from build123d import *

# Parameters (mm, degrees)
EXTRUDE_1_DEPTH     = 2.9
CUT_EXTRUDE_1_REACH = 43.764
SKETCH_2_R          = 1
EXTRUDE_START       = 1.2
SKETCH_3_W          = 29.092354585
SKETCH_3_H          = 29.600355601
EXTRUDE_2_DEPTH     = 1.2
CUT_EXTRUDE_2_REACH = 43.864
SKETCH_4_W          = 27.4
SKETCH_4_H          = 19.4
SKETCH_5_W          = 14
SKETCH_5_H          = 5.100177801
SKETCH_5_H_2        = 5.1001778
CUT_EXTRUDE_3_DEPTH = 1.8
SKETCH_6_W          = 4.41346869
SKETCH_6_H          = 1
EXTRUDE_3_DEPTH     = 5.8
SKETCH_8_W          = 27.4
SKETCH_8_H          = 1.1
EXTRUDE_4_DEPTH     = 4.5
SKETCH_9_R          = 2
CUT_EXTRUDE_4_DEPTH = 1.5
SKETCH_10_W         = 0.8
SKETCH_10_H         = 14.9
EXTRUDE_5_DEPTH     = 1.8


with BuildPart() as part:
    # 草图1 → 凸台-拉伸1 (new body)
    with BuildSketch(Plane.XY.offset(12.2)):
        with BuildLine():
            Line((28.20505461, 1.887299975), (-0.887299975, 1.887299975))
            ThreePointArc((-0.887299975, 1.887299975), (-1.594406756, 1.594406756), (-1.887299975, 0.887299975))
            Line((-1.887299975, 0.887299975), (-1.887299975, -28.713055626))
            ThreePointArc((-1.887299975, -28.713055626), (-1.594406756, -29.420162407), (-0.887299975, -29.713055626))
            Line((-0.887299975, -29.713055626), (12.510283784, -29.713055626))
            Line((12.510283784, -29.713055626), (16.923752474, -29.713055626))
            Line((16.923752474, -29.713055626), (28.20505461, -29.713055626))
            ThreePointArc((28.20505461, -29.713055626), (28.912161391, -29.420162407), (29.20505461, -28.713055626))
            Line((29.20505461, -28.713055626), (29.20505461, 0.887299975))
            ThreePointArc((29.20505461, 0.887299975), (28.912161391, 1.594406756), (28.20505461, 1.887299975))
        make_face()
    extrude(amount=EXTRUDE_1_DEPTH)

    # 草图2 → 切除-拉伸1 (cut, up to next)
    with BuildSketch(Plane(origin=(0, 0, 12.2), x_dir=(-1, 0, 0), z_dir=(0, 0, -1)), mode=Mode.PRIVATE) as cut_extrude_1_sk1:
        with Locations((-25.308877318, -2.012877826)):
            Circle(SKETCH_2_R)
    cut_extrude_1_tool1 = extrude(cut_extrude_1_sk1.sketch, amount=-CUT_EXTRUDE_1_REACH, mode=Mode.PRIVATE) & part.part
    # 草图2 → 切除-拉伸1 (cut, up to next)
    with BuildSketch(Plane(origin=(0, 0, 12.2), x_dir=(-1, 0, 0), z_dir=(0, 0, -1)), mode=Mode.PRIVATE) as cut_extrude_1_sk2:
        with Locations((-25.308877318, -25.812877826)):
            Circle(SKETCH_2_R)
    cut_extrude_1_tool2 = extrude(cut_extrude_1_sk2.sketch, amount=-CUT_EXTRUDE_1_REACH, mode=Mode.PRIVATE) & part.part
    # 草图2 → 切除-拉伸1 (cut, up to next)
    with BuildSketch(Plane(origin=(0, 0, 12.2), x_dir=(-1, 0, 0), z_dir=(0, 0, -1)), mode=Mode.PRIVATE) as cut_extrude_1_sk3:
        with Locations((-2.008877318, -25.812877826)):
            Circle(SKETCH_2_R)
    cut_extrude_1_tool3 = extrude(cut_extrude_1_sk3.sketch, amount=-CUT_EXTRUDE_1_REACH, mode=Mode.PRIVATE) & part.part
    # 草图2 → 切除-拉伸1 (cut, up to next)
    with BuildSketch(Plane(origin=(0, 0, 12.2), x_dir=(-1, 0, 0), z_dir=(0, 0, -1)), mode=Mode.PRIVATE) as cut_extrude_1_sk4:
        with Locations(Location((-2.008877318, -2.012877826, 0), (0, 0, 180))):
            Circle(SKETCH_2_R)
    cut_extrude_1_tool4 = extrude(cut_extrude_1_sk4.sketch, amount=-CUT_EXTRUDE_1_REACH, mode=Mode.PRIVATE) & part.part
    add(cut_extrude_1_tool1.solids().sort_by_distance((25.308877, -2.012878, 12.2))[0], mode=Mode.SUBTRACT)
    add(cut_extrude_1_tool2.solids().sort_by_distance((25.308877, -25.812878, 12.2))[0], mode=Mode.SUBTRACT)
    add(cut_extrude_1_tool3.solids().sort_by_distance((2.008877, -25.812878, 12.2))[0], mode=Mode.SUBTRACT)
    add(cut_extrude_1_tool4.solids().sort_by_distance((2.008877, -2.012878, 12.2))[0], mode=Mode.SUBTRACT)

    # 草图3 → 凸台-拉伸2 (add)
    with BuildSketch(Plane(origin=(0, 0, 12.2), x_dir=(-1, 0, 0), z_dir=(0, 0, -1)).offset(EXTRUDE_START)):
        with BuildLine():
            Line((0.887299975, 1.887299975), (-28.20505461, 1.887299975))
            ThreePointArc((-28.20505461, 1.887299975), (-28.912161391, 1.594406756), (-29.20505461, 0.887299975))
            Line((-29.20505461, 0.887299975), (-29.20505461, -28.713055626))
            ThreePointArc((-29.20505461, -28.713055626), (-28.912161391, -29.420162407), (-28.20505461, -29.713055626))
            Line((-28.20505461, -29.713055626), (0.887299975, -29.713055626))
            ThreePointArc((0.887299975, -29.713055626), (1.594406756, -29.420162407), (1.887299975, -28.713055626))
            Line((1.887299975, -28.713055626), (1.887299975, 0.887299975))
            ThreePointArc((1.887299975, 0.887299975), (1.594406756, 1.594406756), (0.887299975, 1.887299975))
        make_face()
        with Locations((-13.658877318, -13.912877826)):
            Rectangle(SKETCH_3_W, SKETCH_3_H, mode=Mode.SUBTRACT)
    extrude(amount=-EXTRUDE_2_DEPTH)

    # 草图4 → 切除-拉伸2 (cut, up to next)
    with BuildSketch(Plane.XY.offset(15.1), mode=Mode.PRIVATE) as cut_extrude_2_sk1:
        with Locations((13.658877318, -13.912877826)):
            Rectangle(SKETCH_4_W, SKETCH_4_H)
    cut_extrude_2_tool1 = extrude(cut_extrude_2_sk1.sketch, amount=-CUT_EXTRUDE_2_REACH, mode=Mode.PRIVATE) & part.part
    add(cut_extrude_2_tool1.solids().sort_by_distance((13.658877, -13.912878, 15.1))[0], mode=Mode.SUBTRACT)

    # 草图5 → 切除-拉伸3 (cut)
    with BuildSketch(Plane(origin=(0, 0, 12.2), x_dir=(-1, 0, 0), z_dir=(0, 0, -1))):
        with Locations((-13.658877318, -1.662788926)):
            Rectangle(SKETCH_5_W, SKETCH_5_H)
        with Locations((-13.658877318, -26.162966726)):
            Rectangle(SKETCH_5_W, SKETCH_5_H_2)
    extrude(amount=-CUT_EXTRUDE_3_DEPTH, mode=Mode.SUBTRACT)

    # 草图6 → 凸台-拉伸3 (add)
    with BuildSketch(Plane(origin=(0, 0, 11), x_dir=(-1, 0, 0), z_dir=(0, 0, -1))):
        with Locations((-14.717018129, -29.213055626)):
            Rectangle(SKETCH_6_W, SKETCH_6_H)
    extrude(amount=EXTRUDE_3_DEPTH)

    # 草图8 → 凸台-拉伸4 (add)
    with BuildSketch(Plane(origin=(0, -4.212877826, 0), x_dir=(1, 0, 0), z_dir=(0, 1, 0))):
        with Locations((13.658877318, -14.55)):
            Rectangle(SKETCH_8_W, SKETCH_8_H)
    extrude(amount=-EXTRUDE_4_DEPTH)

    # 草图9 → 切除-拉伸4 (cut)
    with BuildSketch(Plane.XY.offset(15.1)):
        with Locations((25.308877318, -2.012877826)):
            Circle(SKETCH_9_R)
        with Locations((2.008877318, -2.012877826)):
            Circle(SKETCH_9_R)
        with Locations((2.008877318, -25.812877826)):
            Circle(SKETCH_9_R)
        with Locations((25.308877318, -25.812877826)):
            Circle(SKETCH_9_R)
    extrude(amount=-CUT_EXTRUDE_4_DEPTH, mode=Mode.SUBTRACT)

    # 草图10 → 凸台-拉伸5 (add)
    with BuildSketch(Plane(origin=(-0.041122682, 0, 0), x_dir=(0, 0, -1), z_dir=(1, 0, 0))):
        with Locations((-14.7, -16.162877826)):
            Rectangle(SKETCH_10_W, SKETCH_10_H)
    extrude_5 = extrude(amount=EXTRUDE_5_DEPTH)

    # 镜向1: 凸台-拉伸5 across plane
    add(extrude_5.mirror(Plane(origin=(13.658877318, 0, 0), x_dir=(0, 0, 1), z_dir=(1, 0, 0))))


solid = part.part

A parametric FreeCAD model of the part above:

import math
import FreeCAD as App
import Part
import Sketcher

V = App.Vector


def add_polygon(sketch, points):
    """Adds a closed chain of lines whose ends are joined by coincident constraints."""
    first, n = sketch.GeometryCount, len(points)
    for a, b in zip(points, points[1:] + points[:1]):
        sketch.addGeometry(Part.LineSegment(App.Vector(*a, 0), App.Vector(*b, 0)), False)
    for i in range(n):
        sketch.addConstraint(Sketcher.Constraint("Coincident", first + i, 2, first + (i + 1) % n, 1))

doc = App.newDocument("Part")
body = doc.addObject("PartDesign::Body", "Body")

# Sketch on XY plane
sketch1 = body.newObject("Sketcher::SketchObject", "Sketch")
sketch1.AttachmentSupport = (doc.getObject("XY_Plane"), [""])
sketch1.MapMode = "FlatFace"
sketch1.AttachmentOffset = App.Placement(V(0, 0, 12.2), App.Rotation())
sketch1.addGeometry(Part.LineSegment(V(28.2, 1.9, 0), V(-0.9, 1.9, 0)), False)
sketch1.addGeometry(Part.ArcOfCircle(Part.Circle(V(-0.9, 0.9, 0), V(0, 0, 1), 1), math.radians(90), math.radians(180)), False)
sketch1.addGeometry(Part.LineSegment(V(-1.9, 0.9, 0), V(-1.9, -28.7, 0)), False)
sketch1.addGeometry(Part.ArcOfCircle(Part.Circle(V(-0.9, -28.7, 0), V(0, 0, 1), 1), math.radians(-180), math.radians(-90)), False)
sketch1.addGeometry(Part.LineSegment(V(-0.9, -29.7, 0), V(28.2, -29.7, 0)), False)
sketch1.addGeometry(Part.ArcOfCircle(Part.Circle(V(28.2, -28.7, 0), V(0, 0, 1), 1), math.radians(-90), math.radians(0)), False)
sketch1.addGeometry(Part.LineSegment(V(29.2, -28.7, 0), V(29.2, 0.9, 0)), False)
sketch1.addGeometry(Part.ArcOfCircle(Part.Circle(V(28.2, 0.9, 0), V(0, 0, 1), 1), math.radians(0), math.radians(90)), False)
sketch1.addConstraint(Sketcher.Constraint("Tangent", 0, 2, 1, 1))
sketch1.addConstraint(Sketcher.Constraint("Tangent", 1, 2, 2, 1))
sketch1.addConstraint(Sketcher.Constraint("Tangent", 2, 2, 3, 1))
sketch1.addConstraint(Sketcher.Constraint("Tangent", 3, 2, 4, 1))
sketch1.addConstraint(Sketcher.Constraint("Tangent", 4, 2, 5, 1))
sketch1.addConstraint(Sketcher.Constraint("Tangent", 5, 2, 6, 1))
sketch1.addConstraint(Sketcher.Constraint("Tangent", 6, 2, 7, 1))
sketch1.addConstraint(Sketcher.Constraint("Tangent", 7, 2, 0, 1))
sketch1.addConstraint(Sketcher.Constraint("Horizontal", 0))
sketch1.addConstraint(Sketcher.Constraint("Vertical", 2))
sketch1.addConstraint(Sketcher.Constraint("Horizontal", 4))
sketch1.addConstraint(Sketcher.Constraint("Vertical", 6))
sketch1.addConstraint(Sketcher.Constraint("Equal", 1, 3))
sketch1.addConstraint(Sketcher.Constraint("Equal", 3, 5))
sketch1.addConstraint(Sketcher.Constraint("Equal", 5, 7))
sketch1.addConstraint(Sketcher.Constraint("Radius", 1, 1.0))
sketch1.addConstraint(Sketcher.Constraint("DistanceX", 1, 3, -1, 1, 0.8873))
sketch1.addConstraint(Sketcher.Constraint("DistanceY", -1, 1, 1, 3, 0.8873))
sketch1.addConstraint(Sketcher.Constraint("DistanceX", 0, 2, 0, 1, 29.092355))
sketch1.addConstraint(Sketcher.Constraint("DistanceY", 2, 2, 2, 1, 29.600356))
pad1 = body.newObject("PartDesign::Pad", "Pad")
pad1.Profile = sketch1
pad1.Length = 2.9

# Sketch on XY plane
sketch2 = body.newObject("Sketcher::SketchObject", "Sketch001")
sketch2.AttachmentSupport = (doc.getObject("XY_Plane"), [""])
sketch2.MapMode = "FlatFace"
sketch2.AttachmentOffset = App.Placement(V(0, 0, 12.2), App.Rotation())
sketch2.addGeometry(Part.Circle(V(25.3, -2, 0), V(0, 0, 1), 1), False)
sketch2.addConstraint(Sketcher.Constraint("Diameter", 0, 2.0))
sketch2.addConstraint(Sketcher.Constraint("DistanceX", -1, 1, 0, 3, 25.308877))
sketch2.addConstraint(Sketcher.Constraint("DistanceY", 0, 3, -1, 1, 2.012878))
pocket1 = body.newObject("PartDesign::Pocket", "Pocket")
pocket1.Profile = sketch2
pocket1.Type = "UpToFirst"
pocket1.Reversed = True

# Sketch on XY plane
sketch3 = body.newObject("Sketcher::SketchObject", "Sketch002")
sketch3.AttachmentSupport = (doc.getObject("XY_Plane"), [""])
sketch3.MapMode = "FlatFace"
sketch3.AttachmentOffset = App.Placement(V(0, 0, 12.2), App.Rotation())
sketch3.addGeometry(Part.Circle(V(25.3, -25.8, 0), V(0, 0, 1), 1), False)
sketch3.addConstraint(Sketcher.Constraint("Diameter", 0, 2.0))
sketch3.addConstraint(Sketcher.Constraint("DistanceX", -1, 1, 0, 3, 25.308877))
sketch3.addConstraint(Sketcher.Constraint("DistanceY", 0, 3, -1, 1, 25.812878))
pocket2 = body.newObject("PartDesign::Pocket", "Pocket001")
pocket2.Profile = sketch3
pocket2.Type = "UpToFirst"
pocket2.Reversed = True

# Sketch on XY plane
sketch4 = body.newObject("Sketcher::SketchObject", "Sketch003")
sketch4.AttachmentSupport = (doc.getObject("XY_Plane"), [""])
sketch4.MapMode = "FlatFace"
sketch4.AttachmentOffset = App.Placement(V(0, 0, 12.2), App.Rotation())
sketch4.addGeometry(Part.Circle(V(2, -25.8, 0), V(0, 0, 1), 1), False)
sketch4.addConstraint(Sketcher.Constraint("Diameter", 0, 2.0))
sketch4.addConstraint(Sketcher.Constraint("DistanceX", -1, 1, 0, 3, 2.008877))
sketch4.addConstraint(Sketcher.Constraint("DistanceY", 0, 3, -1, 1, 25.812878))
pocket3 = body.newObject("PartDesign::Pocket", "Pocket002")
pocket3.Profile = sketch4
pocket3.Type = "UpToFirst"
pocket3.Reversed = True

# Sketch on XY plane
sketch5 = body.newObject("Sketcher::SketchObject", "Sketch004")
sketch5.AttachmentSupport = (doc.getObject("XY_Plane"), [""])
sketch5.MapMode = "FlatFace"
sketch5.AttachmentOffset = App.Placement(V(0, 0, 12.2), App.Rotation())
sketch5.addGeometry(Part.Circle(V(2, -2, 0), V(0, 0, 1), 1), False)
sketch5.addConstraint(Sketcher.Constraint("Diameter", 0, 2.0))
sketch5.addConstraint(Sketcher.Constraint("DistanceX", -1, 1, 0, 3, 2.008877))
sketch5.addConstraint(Sketcher.Constraint("DistanceY", 0, 3, -1, 1, 2.012878))
pocket4 = body.newObject("PartDesign::Pocket", "Pocket003")
pocket4.Profile = sketch5
pocket4.Type = "UpToFirst"
pocket4.Reversed = True

# Sketch on XY plane
sketch6 = body.newObject("Sketcher::SketchObject", "Sketch005")
sketch6.AttachmentSupport = (doc.getObject("XY_Plane"), [""])
sketch6.MapMode = "FlatFace"
sketch6.AttachmentOffset = App.Placement(V(0, 0, 11), App.Rotation())
sketch6.addGeometry(Part.LineSegment(V(-0.9, 1.9, 0), V(28.2, 1.9, 0)), False)  # 0
sketch6.addGeometry(Part.ArcOfCircle(Part.Circle(V(28.2, 0.9, 0), V(0, 0, 1), 1), math.radians(0), math.radians(90)), False)  # 1
sketch6.addGeometry(Part.LineSegment(V(29.2, 0.9, 0), V(29.2, -28.7, 0)), False)  # 2
sketch6.addGeometry(Part.ArcOfCircle(Part.Circle(V(28.2, -28.7, 0), V(0, 0, 1), 1), math.radians(-90), math.radians(0)), False)  # 3
sketch6.addGeometry(Part.LineSegment(V(28.2, -29.7, 0), V(-0.9, -29.7, 0)), False)  # 4
sketch6.addGeometry(Part.ArcOfCircle(Part.Circle(V(-0.9, -28.7, 0), V(0, 0, 1), 1), math.radians(-180), math.radians(-90)), False)  # 5
sketch6.addGeometry(Part.LineSegment(V(-1.9, -28.7, 0), V(-1.9, 0.9, 0)), False)  # 6
sketch6.addGeometry(Part.ArcOfCircle(Part.Circle(V(-0.9, 0.9, 0), V(0, 0, 1), 1), math.radians(90), math.radians(180)), False)  # 7
add_polygon(sketch6, [(-0.9, -28.7), (28.2, -28.7), (28.2, 0.9), (-0.9, 0.9)])  # lines 8-11
sketch6.addConstraint(Sketcher.Constraint("Tangent", 0, 2, 1, 2))
sketch6.addConstraint(Sketcher.Constraint("Tangent", 1, 1, 2, 1))
sketch6.addConstraint(Sketcher.Constraint("Tangent", 2, 2, 3, 2))
sketch6.addConstraint(Sketcher.Constraint("Tangent", 3, 1, 4, 1))
sketch6.addConstraint(Sketcher.Constraint("Tangent", 4, 2, 5, 2))
sketch6.addConstraint(Sketcher.Constraint("Tangent", 5, 1, 6, 1))
sketch6.addConstraint(Sketcher.Constraint("Tangent", 6, 2, 7, 2))
sketch6.addConstraint(Sketcher.Constraint("Tangent", 7, 1, 0, 1))
sketch6.addConstraint(Sketcher.Constraint("Horizontal", 0))
sketch6.addConstraint(Sketcher.Constraint("Vertical", 2))
sketch6.addConstraint(Sketcher.Constraint("Horizontal", 4))
sketch6.addConstraint(Sketcher.Constraint("Vertical", 6))
sketch6.addConstraint(Sketcher.Constraint("Horizontal", 8))
sketch6.addConstraint(Sketcher.Constraint("Vertical", 9))
sketch6.addConstraint(Sketcher.Constraint("Horizontal", 10))
sketch6.addConstraint(Sketcher.Constraint("Vertical", 11))
sketch6.addConstraint(Sketcher.Constraint("Coincident", 8, 2, 3, 3))
sketch6.addConstraint(Sketcher.Constraint("Coincident", 9, 2, 1, 3))
sketch6.addConstraint(Sketcher.Constraint("Coincident", 10, 2, 7, 3))
sketch6.addConstraint(Sketcher.Constraint("Equal", 3, 5))
sketch6.addConstraint(Sketcher.Constraint("Radius", 1, 1.0))
sketch6.addConstraint(Sketcher.Constraint("DistanceY", -1, 1, 1, 3, 0.8873))
sketch6.addConstraint(Sketcher.Constraint("DistanceX", 5, 3, -1, 1, 0.8873))
sketch6.addConstraint(Sketcher.Constraint("DistanceX", 0, 1, 0, 2, 29.092355))
sketch6.addConstraint(Sketcher.Constraint("DistanceY", 2, 2, 2, 1, 29.600356))
pad2 = body.newObject("PartDesign::Pad", "Pad001")
pad2.Profile = sketch6
pad2.Length = 1.2

# Sketch on XY plane
sketch7 = body.newObject("Sketcher::SketchObject", "Sketch006")
sketch7.AttachmentSupport = (doc.getObject("XY_Plane"), [""])
sketch7.MapMode = "FlatFace"
sketch7.AttachmentOffset = App.Placement(V(0, 0, 15.1), App.Rotation())
add_polygon(sketch7, [(0, -4), (0, -24), (27, -24), (27, -4)])  # lines 0-3
sketch7.addConstraint(Sketcher.Constraint("Vertical", 0))
sketch7.addConstraint(Sketcher.Constraint("Horizontal", 1))
sketch7.addConstraint(Sketcher.Constraint("Vertical", 2))
sketch7.addConstraint(Sketcher.Constraint("Horizontal", 3))
sketch7.addConstraint(Sketcher.Constraint("DistanceX", 1, 1, 1, 2, 27.4))
sketch7.addConstraint(Sketcher.Constraint("DistanceY", 0, 2, 0, 1, 19.4))
sketch7.addConstraint(Sketcher.Constraint("DistanceX", 0, 2, -1, 1, 0.041123))
sketch7.addConstraint(Sketcher.Constraint("DistanceY", 0, 2, -1, 1, 23.612878))
pocket5 = body.newObject("PartDesign::Pocket", "Pocket004")
pocket5.Profile = sketch7
pocket5.Type = "UpToFirst"

# Sketch on XY plane
sketch8 = body.newObject("Sketcher::SketchObject", "Sketch007")
sketch8.AttachmentSupport = (doc.getObject("XY_Plane"), [""])
sketch8.MapMode = "FlatFace"
sketch8.AttachmentOffset = App.Placement(V(0, 0, 12.2), App.Rotation())
add_polygon(sketch8, [(21, 1), (21, -4), (7, -4), (7, 1)])  # lines 0-3
add_polygon(sketch8, [(21, -24), (21, -29), (7, -29), (7, -24)])  # lines 4-7
sketch8.addConstraint(Sketcher.Constraint("Vertical", 0))
sketch8.addConstraint(Sketcher.Constraint("Horizontal", 1))
sketch8.addConstraint(Sketcher.Constraint("Vertical", 2))
sketch8.addConstraint(Sketcher.Constraint("Horizontal", 3))
sketch8.addConstraint(Sketcher.Constraint("Vertical", 4))
sketch8.addConstraint(Sketcher.Constraint("Horizontal", 5))
sketch8.addConstraint(Sketcher.Constraint("Vertical", 6))
sketch8.addConstraint(Sketcher.Constraint("Horizontal", 7))
sketch8.addConstraint(Sketcher.Constraint("Vertical", 3, 2, 4, 2))
sketch8.addConstraint(Sketcher.Constraint("Vertical", 2, 2, 5, 2))
sketch8.addConstraint(Sketcher.Constraint("Equal", 2, 4))
sketch8.addConstraint(Sketcher.Constraint("DistanceX", 1, 2, 1, 1, 14.0))
sketch8.addConstraint(Sketcher.Constraint("DistanceY", 6, 2, 1, 2, 19.4))
sketch8.addConstraint(Sketcher.Constraint("DistanceY", -1, 1, 2, 2, 0.8873))
sketch8.addConstraint(Sketcher.Constraint("DistanceY", 0, 2, 0, 1, 5.100178))
sketch8.addConstraint(Sketcher.Constraint("DistanceX", -1, 1, 0, 2, 20.658877))
pocket6 = body.newObject("PartDesign::Pocket", "Pocket005")
pocket6.Profile = sketch8
pocket6.Length = 1.8
pocket6.Reversed = True

# Sketch on XY plane
sketch9 = body.newObject("Sketcher::SketchObject", "Sketch008")
sketch9.AttachmentSupport = (doc.getObject("XY_Plane"), [""])
sketch9.MapMode = "FlatFace"
sketch9.AttachmentOffset = App.Placement(V(0, 0, 11), App.Rotation())
add_polygon(sketch9, [(16.9, -28.7), (16.9, -29.7), (12.5, -29.7), (12.5, -28.7)])  # lines 0-3
sketch9.addConstraint(Sketcher.Constraint("Vertical", 0))
sketch9.addConstraint(Sketcher.Constraint("Horizontal", 1))
sketch9.addConstraint(Sketcher.Constraint("Vertical", 2))
sketch9.addConstraint(Sketcher.Constraint("Horizontal", 3))
sketch9.addConstraint(Sketcher.Constraint("DistanceY", 0, 2, 0, 1, 1.0))
sketch9.addConstraint(Sketcher.Constraint("DistanceX", 1, 2, 1, 1, 4.413469))
sketch9.addConstraint(Sketcher.Constraint("DistanceX", -1, 1, 0, 2, 16.923752))
sketch9.addConstraint(Sketcher.Constraint("DistanceY", 0, 2, -1, 1, 29.713056))
pad3 = body.newObject("PartDesign::Pad", "Pad002")
pad3.Profile = sketch9
pad3.Length = 5.8
pad3.Reversed = True

# Sketch on XZ plane
sketch10 = body.newObject("Sketcher::SketchObject", "Sketch009")
sketch10.AttachmentSupport = (doc.getObject("XZ_Plane"), [""])
sketch10.MapMode = "FlatFace"
sketch10.AttachmentOffset = App.Placement(V(0, 0, 4.212878), App.Rotation())
add_polygon(sketch10, [(0, 14), (0, 15.1), (27.4, 15.1), (27.4, 14)])  # lines 0-3
sketch10.addConstraint(Sketcher.Constraint("Vertical", 0))
sketch10.addConstraint(Sketcher.Constraint("Horizontal", 1))
sketch10.addConstraint(Sketcher.Constraint("Vertical", 2))
sketch10.addConstraint(Sketcher.Constraint("Horizontal", 3))
sketch10.addConstraint(Sketcher.Constraint("DistanceX", 1, 1, 1, 2, 27.4))
sketch10.addConstraint(Sketcher.Constraint("DistanceY", 0, 1, 0, 2, 1.1))
sketch10.addConstraint(Sketcher.Constraint("DistanceY", -1, 1, 2, 2, 14.0))
sketch10.addConstraint(Sketcher.Constraint("DistanceX", 0, 2, -1, 1, 0.041123))
pad4 = body.newObject("PartDesign::Pad", "Pad003")
pad4.Profile = sketch10
pad4.Length = 4.5

# Sketch on XY plane
sketch11 = body.newObject("Sketcher::SketchObject", "Sketch010")
sketch11.AttachmentSupport = (doc.getObject("XY_Plane"), [""])
sketch11.MapMode = "FlatFace"
sketch11.AttachmentOffset = App.Placement(V(0, 0, 15.1), App.Rotation())
sketch11.addGeometry(Part.Circle(V(25.3, -2, 0), V(0, 0, 1), 2), False)
sketch11.addGeometry(Part.Circle(V(2, -2, 0), V(0, 0, 1), 2), False)
sketch11.addGeometry(Part.Circle(V(2, -25.8, 0), V(0, 0, 1), 2), False)
sketch11.addGeometry(Part.Circle(V(25.3, -25.8, 0), V(0, 0, 1), 2), False)
sketch11.addConstraint(Sketcher.Constraint("Equal", 0, 1))
sketch11.addConstraint(Sketcher.Constraint("Equal", 1, 2))
sketch11.addConstraint(Sketcher.Constraint("Equal", 2, 3))
sketch11.addConstraint(Sketcher.Constraint("Horizontal", 0, 3, 1, 3))
sketch11.addConstraint(Sketcher.Constraint("Horizontal", 2, 3, 3, 3))
sketch11.addConstraint(Sketcher.Constraint("Vertical", 1, 3, 2, 3))
sketch11.addConstraint(Sketcher.Constraint("Vertical", 0, 3, 3, 3))
sketch11.addConstraint(Sketcher.Constraint("Diameter", 0, 4.0))
sketch11.addConstraint(Sketcher.Constraint("DistanceX", 1, 3, 0, 3, 23.3))
sketch11.addConstraint(Sketcher.Constraint("DistanceY", 2, 3, 1, 3, 23.8))
sketch11.addConstraint(Sketcher.Constraint("DistanceX", -1, 1, 0, 3, 25.308877))
sketch11.addConstraint(Sketcher.Constraint("DistanceY", 0, 3, -1, 1, 2.012878))
pocket7 = body.newObject("PartDesign::Pocket", "Pocket006")
pocket7.Profile = sketch11
pocket7.Length = 1.5

# Sketch on YZ plane
sketch12 = body.newObject("Sketcher::SketchObject", "Sketch011")
sketch12.AttachmentSupport = (doc.getObject("YZ_Plane"), [""])
sketch12.MapMode = "FlatFace"
sketch12.AttachmentOffset = App.Placement(V(0, 0, -0.041123), App.Rotation())
add_polygon(sketch12, [(-8.7, 15.1), (-23.6, 15.1), (-23.6, 14.3), (-8.7, 14.3)])  # lines 0-3
sketch12.addConstraint(Sketcher.Constraint("Horizontal", 0))
sketch12.addConstraint(Sketcher.Constraint("Vertical", 1))
sketch12.addConstraint(Sketcher.Constraint("Horizontal", 2))
sketch12.addConstraint(Sketcher.Constraint("Vertical", 3))
sketch12.addConstraint(Sketcher.Constraint("DistanceX", 0, 2, 0, 1, 14.9))
sketch12.addConstraint(Sketcher.Constraint("DistanceY", 1, 2, 1, 1, 0.8))
sketch12.addConstraint(Sketcher.Constraint("DistanceY", -1, 1, 0, 2, 15.1))
sketch12.addConstraint(Sketcher.Constraint("DistanceX", 0, 2, -1, 1, 23.612878))
pad5 = body.newObject("PartDesign::Pad", "Pad004")
pad5.Profile = sketch12
pad5.Length = 1.8
doc.recompute()

datumplane = body.newObject("PartDesign::Plane", "DatumPlane")
datumplane.AttachmentSupport = (doc.getObject("YZ_Plane"), [""])
datumplane.MapMode = "FlatFace"
datumplane.AttachmentOffset = App.Placement(V(0, 0, 13.658877), App.Rotation())
mirrored = body.newObject("PartDesign::Mirrored", "Mirrored")
mirrored.Originals = [pad5]
mirrored.MirrorPlane = (datumplane, [""])
body.Tip = mirrored

doc.recompute()
